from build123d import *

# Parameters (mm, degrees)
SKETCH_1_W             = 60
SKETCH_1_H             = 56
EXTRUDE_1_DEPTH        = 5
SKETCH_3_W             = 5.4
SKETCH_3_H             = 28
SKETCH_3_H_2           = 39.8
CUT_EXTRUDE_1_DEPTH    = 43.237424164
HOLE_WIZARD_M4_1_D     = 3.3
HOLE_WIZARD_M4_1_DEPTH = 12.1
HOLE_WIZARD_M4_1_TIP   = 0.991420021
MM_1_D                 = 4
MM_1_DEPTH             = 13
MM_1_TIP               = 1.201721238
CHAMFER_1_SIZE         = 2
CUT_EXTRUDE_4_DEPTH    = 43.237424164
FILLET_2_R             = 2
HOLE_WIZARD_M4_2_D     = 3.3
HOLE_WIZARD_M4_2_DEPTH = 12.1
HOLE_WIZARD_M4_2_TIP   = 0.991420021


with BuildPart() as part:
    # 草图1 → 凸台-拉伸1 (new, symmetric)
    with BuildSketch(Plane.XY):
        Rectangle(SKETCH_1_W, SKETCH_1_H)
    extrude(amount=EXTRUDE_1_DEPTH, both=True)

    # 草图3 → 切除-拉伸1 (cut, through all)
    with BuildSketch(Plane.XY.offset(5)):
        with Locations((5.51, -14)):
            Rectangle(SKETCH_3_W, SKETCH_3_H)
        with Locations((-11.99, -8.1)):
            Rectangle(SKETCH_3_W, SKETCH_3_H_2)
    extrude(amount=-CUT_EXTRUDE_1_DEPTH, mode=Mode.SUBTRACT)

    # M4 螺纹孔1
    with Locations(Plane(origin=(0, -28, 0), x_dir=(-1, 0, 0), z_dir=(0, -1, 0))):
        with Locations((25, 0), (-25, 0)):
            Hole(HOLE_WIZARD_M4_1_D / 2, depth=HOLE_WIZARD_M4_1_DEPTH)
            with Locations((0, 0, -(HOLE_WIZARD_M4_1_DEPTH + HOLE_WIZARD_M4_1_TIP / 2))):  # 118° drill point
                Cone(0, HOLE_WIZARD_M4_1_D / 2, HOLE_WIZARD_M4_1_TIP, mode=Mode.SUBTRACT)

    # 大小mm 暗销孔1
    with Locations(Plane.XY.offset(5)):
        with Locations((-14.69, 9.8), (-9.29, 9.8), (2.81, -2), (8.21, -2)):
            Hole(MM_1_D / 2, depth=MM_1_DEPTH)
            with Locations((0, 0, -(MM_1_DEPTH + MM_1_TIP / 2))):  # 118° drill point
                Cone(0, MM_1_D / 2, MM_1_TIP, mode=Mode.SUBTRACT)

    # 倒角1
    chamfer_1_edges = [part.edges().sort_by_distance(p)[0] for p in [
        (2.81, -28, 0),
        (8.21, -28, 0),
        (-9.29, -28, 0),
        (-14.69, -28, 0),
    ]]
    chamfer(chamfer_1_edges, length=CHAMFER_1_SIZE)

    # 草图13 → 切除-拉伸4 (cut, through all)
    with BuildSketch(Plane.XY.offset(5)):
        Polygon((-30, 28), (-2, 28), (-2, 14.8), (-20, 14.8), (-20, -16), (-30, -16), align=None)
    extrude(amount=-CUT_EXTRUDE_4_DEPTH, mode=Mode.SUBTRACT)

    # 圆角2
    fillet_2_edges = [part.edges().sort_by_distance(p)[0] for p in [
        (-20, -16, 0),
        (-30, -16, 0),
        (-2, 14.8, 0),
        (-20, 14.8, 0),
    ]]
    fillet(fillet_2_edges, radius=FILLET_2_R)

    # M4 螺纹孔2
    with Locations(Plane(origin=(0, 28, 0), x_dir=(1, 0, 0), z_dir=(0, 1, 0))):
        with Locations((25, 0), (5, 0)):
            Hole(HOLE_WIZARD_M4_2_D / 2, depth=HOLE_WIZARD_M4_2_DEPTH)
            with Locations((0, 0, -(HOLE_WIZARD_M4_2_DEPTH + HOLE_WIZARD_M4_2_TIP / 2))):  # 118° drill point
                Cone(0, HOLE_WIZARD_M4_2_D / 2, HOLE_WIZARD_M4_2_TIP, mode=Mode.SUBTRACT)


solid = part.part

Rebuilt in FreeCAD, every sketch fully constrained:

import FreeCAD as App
import Part
import Sketcher
from FreeCAD import Vector
Q = App.Units.Quantity


def edges_at(feature, points):
    """Names of the edges that pass closest to the given points."""
    edges = feature.Shape.Edges
    near = lambda p: min(range(len(edges)), key=lambda i: edges[i].distToShape(Part.Vertex(*p))[0])
    return sorted({f"Edge{near(p) + 1}" for p in points})


def add_polygon(sketch, points):
    """Adds a closed chain of lines whose ends are joined by coincident constraints."""
    first, n = sketch.GeometryCount, len(points)
    for a, b in zip(points, points[1:] + points[:1]):
        sketch.addGeometry(Part.LineSegment(App.Vector(*a, 0), App.Vector(*b, 0)), False)
    for i in range(n):
        sketch.addConstraint(Sketcher.Constraint("Coincident", first + i, 2, first + (i + 1) % n, 1))

doc = App.newDocument("Part")
params = doc.addObject("Spreadsheet::Sheet", "Params")
for row, (alias, value) in enumerate([
    ("sketch1_width", "60 mm"),
    ("sketch1_height", "56 mm"),
    ("pad1_length", "10 mm"),
    ("sketch2_height", "28 mm"),
    ("sketch2_width", "5.4 mm"),
    ("sketch2_height2", "39.8 mm"),
    ("sketch3_diameter", "3.3 mm"),
    ("hole_diameter", "3.3 mm"),
    ("hole_depth", "12.1 mm"),
    ("sketch4_diameter", "4 mm"),
    ("hole2_diameter", "4 mm"),
    ("hole2_depth", "13 mm"),
    ("chamfer_size", "2 mm"),
    ("sketch5_width", "28 mm"),
    ("sketch5_width2", "10 mm"),
    ("sketch5_height", "44 mm"),
    ("sketch5_height2", "30.8 mm"),
    ("fillet_radius", "2 mm"),
    ("sketch6_diameter", "3.3 mm"),
    ("hole3_diameter", "3.3 mm"),
    ("hole3_depth", "12.1 mm"),
], start=1):
    params.set(f"A{row}", alias)
    params.set(f"B{row}", "=" + value)
    params.setAlias(f"B{row}", alias)

body = doc.addObject("PartDesign::Body", "Body")

sketch1 = body.newObject("Sketcher::SketchObject", "Sketch")
sketch1.AttachmentSupport = (doc.getObject("XY_Plane"), [""])
sketch1.MapMode = "FlatFace"
add_polygon(sketch1, [(-30, 28), (-30, -28), (30, -28), (30, 28)])
sketch1.addConstraint(Sketcher.Constraint("Vertical", 0))
sketch1.addConstraint(Sketcher.Constraint("Horizontal", 1))
sketch1.addConstraint(Sketcher.Constraint("Vertical", 2))
sketch1.addConstraint(Sketcher.Constraint("Horizontal", 3))
sketch1.addConstraint(Sketcher.Constraint("Symmetric", 0, 2, 2, 2, -1, 1))
sketch1.addConstraint(Sketcher.Constraint("DistanceX", 1, 1, 1, 2, Q("60 mm")))
sketch1.addConstraint(Sketcher.Constraint("DistanceY", 0, 2, 0, 1, Q("56 mm")))
sketch1.setExpression("Constraints[9]", "Params.sketch1_width")
sketch1.setExpression("Constraints[10]", "Params.sketch1_height")
pad1 = body.newObject("PartDesign::Pad", "Pad")
pad1.Profile = sketch1
pad1.setExpression("Length", "Params.pad1_length")
pad1.Midplane = True

sketch2 = body.newObject("Sketcher::SketchObject", "Sketch001")
sketch2.AttachmentSupport = (doc.getObject("XY_Plane"), [""])
sketch2.MapMode = "FlatFace"
sketch2.AttachmentOffset = App.Placement(Vector(0, 0, 5), App.Rotation())
add_polygon(sketch2, [(2.81, 0), (2.81, -28), (8.21, -28), (8.21, 0)])
add_polygon(sketch2, [(-14.69, 11.8), (-14.69, -28), (-9.29, -28), (-9.29, 11.8)])
sketch2.addConstraint(Sketcher.Constraint("Vertical", 0))
sketch2.addConstraint(Sketcher.Constraint("Horizontal", 1))
sketch2.addConstraint(Sketcher.Constraint("Vertical", 2))
sketch2.addConstraint(Sketcher.Constraint("Horizontal", 3))
sketch2.addConstraint(Sketcher.Constraint("Vertical", 4))
sketch2.addConstraint(Sketcher.Constraint("Horizontal", 5))
sketch2.addConstraint(Sketcher.Constraint("Vertical", 6))
sketch2.addConstraint(Sketcher.Constraint("Horizontal", 7))
sketch2.addConstraint(Sketcher.Constraint("PointOnObject", 2, 2, -1))
sketch2.addConstraint(Sketcher.Constraint("Horizontal", 1, 2, 4, 2))
sketch2.addConstraint(Sketcher.Constraint("Equal", 3, 5))
sketch2.addConstraint(Sketcher.Constraint("DistanceY", 0, 2, 0, 1, Q("28 mm")))
sketch2.addConstraint(Sketcher.Constraint("DistanceX", 1, 1, 1, 2, Q("5.4 mm")))
sketch2.addConstraint(Sketcher.Constraint("DistanceY", 4, 2, 4, 1, Q("39.8 mm")))
sketch2.addConstraint(Sketcher.Constraint("DistanceX", 4, 2, 0, 2, Q("17.5 mm")))
sketch2.addConstraint(Sketcher.Constraint("DistanceX", -1, 1, 0, 2, Q("2.81 mm")))
sketch2.setExpression("Constraints[19]", "Params.sketch2_height")
sketch2.setExpression("Constraints[20]", "Params.sketch2_width")
sketch2.setExpression("Constraints[21]", "Params.sketch2_height2")
pocket1 = body.newObject("PartDesign::Pocket", "Pocket")
pocket1.Profile = sketch2
pocket1.Type = "ThroughAll"

sketch3 = body.newObject("Sketcher::SketchObject", "Sketch002")
sketch3.AttachmentSupport = (doc.getObject("XZ_Plane"), [""])
sketch3.MapMode = "FlatFace"
sketch3.AttachmentOffset = App.Placement(Vector(0, 0, 28), App.Rotation())
sketch3.addGeometry(Part.Circle(Vector(-25, 0, 0), Vector(0, 0, 1), 1.65), False)
sketch3.addGeometry(Part.Circle(Vector(25, 0, 0), Vector(0, 0, 1), 1.65), False)
sketch3.addConstraint(Sketcher.Constraint("Equal", 0, 1))
sketch3.addConstraint(Sketcher.Constraint("Symmetric", 0, 3, 1, 3, -1, 1))
sketch3.addConstraint(Sketcher.Constraint("PointOnObject", 0, 3, -1))
sketch3.addConstraint(Sketcher.Constraint("Diameter", 0, Q("3.3 mm")))
sketch3.addConstraint(Sketcher.Constraint("DistanceX", 0, 3, -1, 1, Q("25 mm")))
sketch3.setExpression("Constraints[3]", "Params.sketch3_diameter")
doc.recompute()
hole = body.newObject("PartDesign::Hole", "Hole")
hole.Profile = sketch3
hole.ThreadType = "None"
hole.setExpression("Diameter", "Params.hole_diameter")
hole.DepthType = "Dimension"
hole.setExpression("Depth", "Params.hole_depth")
hole.DrillPoint = "Angled"
hole.DrillPointAngle = 118

sketch4 = body.newObject("Sketcher::SketchObject", "Sketch003")
sketch4.AttachmentSupport = (doc.getObject("XY_Plane"), [""])
sketch4.MapMode = "FlatFace"
sketch4.AttachmentOffset = App.Placement(Vector(0, 0, 5), App.Rotation())
sketch4.addGeometry(Part.Circle(Vector(-14.69, 9.8, 0), Vector(0, 0, 1), 2), False)
sketch4.addGeometry(Part.Circle(Vector(-9.29, 9.8, 0), Vector(0, 0, 1), 2), False)
sketch4.addGeometry(Part.Circle(Vector(2.81, -2, 0), Vector(0, 0, 1), 2), False)
sketch4.addGeometry(Part.Circle(Vector(8.21, -2, 0), Vector(0, 0, 1), 2), False)
sketch4.addConstraint(Sketcher.Constraint("Equal", 0, 1))
sketch4.addConstraint(Sketcher.Constraint("Equal", 1, 2))
sketch4.addConstraint(Sketcher.Constraint("Equal", 2, 3))
sketch4.addConstraint(Sketcher.Constraint("Horizontal", 0, 3, 1, 3))
sketch4.addConstraint(Sketcher.Constraint("Horizontal", 2, 3, 3, 3))
sketch4.addConstraint(Sketcher.Constraint("Diameter", 0, Q("4 mm")))
sketch4.addConstraint(Sketcher.Constraint("DistanceY", 2, 3, -1, 1, Q("2 mm")))
sketch4.addConstraint(Sketcher.Constraint("DistanceY", -1, 1, 0, 3, Q("9.8 mm")))
sketch4.addConstraint(Sketcher.Constraint("DistanceX", 0, 3, 1, 3, Q("5.4 mm")))
sketch4.addConstraint(Sketcher.Constraint("DistanceX", 1, 3, 2, 3, Q("12.1 mm")))
sketch4.addConstraint(Sketcher.Constraint("DistanceX", 2, 3, 3, 3, Q("5.4 mm")))
sketch4.addConstraint(Sketcher.Constraint("DistanceX", 0, 3, -1, 1, Q("14.69 mm")))
sketch4.setExpression("Constraints[5]", "Params.sketch4_diameter")
doc.recompute()
hole2 = body.newObject("PartDesign::Hole", "Hole001")
hole2.Profile = sketch4
hole2.ThreadType = "None"
hole2.setExpression("Diameter", "Params.hole2_diameter")
hole2.DepthType = "Dimension"
hole2.setExpression("Depth", "Params.hole2_depth")
hole2.DrillPoint = "Angled"
hole2.DrillPointAngle = 118
doc.recompute()

chamfer = body.newObject("PartDesign::Chamfer", "Chamfer")
chamfer.Base = (hole2, edges_at(hole2, [
    (2.81, -28, 0),
    (8.21, -28, 0),
    (-9.29, -28, 0),
    (-14.69, -28, 0),
]))
chamfer.setExpression("Size", "Params.chamfer_size")

sketch5 = body.newObject("Sketcher::SketchObject", "Sketch004")
sketch5.AttachmentSupport = (doc.getObject("XY_Plane"), [""])
sketch5.MapMode = "FlatFace"
sketch5.AttachmentOffset = App.Placement(Vector(0, 0, 5), App.Rotation())
add_polygon(sketch5, [(-2, 28), (-30, 28), (-30, -16), (-20, -16), (-20, 14.8), (-2, 14.8)])
sketch5.addConstraint(Sketcher.Constraint("Horizontal", 0))
sketch5.addConstraint(Sketcher.Constraint("Vertical", 1))
sketch5.addConstraint(Sketcher.Constraint("Horizontal", 2))
sketch5.addConstraint(Sketcher.Constraint("Vertical", 3))
sketch5.addConstraint(Sketcher.Constraint("Horizontal", 4))
sketch5.addConstraint(Sketcher.Constraint("Vertical", 5))
sketch5.addConstraint(Sketcher.Constraint("DistanceX", 0, 2, 0, 1, Q("28 mm")))
sketch5.addConstraint(Sketcher.Constraint("DistanceX", 2, 1, 2, 2, Q("10 mm")))
sketch5.addConstraint(Sketcher.Constraint("DistanceY", 1, 2, 1, 1, Q("44 mm")))
sketch5.addConstraint(Sketcher.Constraint("DistanceY", 3, 1, 3, 2, Q("30.8 mm")))
sketch5.addConstraint(Sketcher.Constraint("DistanceX", 0, 2, -1, 1, Q("30 mm")))
sketch5.addConstraint(Sketcher.Constraint("DistanceY", -1, 1, 0, 2, Q("28 mm")))
sketch5.setExpression("Constraints[12]", "Params.sketch5_width")
sketch5.setExpression("Constraints[13]", "Params.sketch5_width2")
sketch5.setExpression("Constraints[14]", "Params.sketch5_height")
sketch5.setExpression("Constraints[15]", "Params.sketch5_height2")
pocket2 = body.newObject("PartDesign::Pocket", "Pocket001")
pocket2.Profile = sketch5
pocket2.Type = "ThroughAll"
doc.recompute()

fillet = body.newObject("PartDesign::Fillet", "Fillet")
fillet.Base = (pocket2, edges_at(pocket2, [
    (-20, -16, 0),
    (-30, -16, 0),
    (-2, 14.8, 0),
    (-20, 14.8, 0),
]))
fillet.setExpression("Radius", "Params.fillet_radius")

sketch6 = body.newObject("Sketcher::SketchObject", "Sketch005")
sketch6.AttachmentSupport = (doc.getObject("XZ_Plane"), [""])
sketch6.MapMode = "FlatFace"
sketch6.AttachmentOffset = App.Placement(Vector(0, 0, -28), App.Rotation())
sketch6.addGeometry(Part.Circle(Vector(25, 0, 0), Vector(0, 0, 1), 1.65), False)
sketch6.addGeometry(Part.Circle(Vector(5, 0, 0), Vector(0, 0, 1), 1.65), False)
sketch6.addConstraint(Sketcher.Constraint("Equal", 0, 1))
sketch6.addConstraint(Sketcher.Constraint("PointOnObject", 0, 3, -1))
sketch6.addConstraint(Sketcher.Constraint("PointOnObject", 1, 3, -1))
sketch6.addConstraint(Sketcher.Constraint("Diameter", 0, Q("3.3 mm")))
sketch6.addConstraint(Sketcher.Constraint("DistanceX", -1, 1, 0, 3, Q("25 mm")))
sketch6.addConstraint(Sketcher.Constraint("DistanceX", -1, 1, 1, 3, Q("5 mm")))
sketch6.setExpression("Constraints[3]", "Params.sketch6_diameter")
doc.recompute()
hole3 = body.newObject("PartDesign::Hole", "Hole002")
hole3.Profile = sketch6
hole3.ThreadType = "None"
hole3.setExpression("Diameter", "Params.hole3_diameter")
hole3.DepthType = "Dimension"
hole3.setExpression("Depth", "Params.hole3_depth")
hole3.DrillPoint = "Angled"
hole3.DrillPointAngle = 118
hole3.Reversed = True

doc.recompute()
